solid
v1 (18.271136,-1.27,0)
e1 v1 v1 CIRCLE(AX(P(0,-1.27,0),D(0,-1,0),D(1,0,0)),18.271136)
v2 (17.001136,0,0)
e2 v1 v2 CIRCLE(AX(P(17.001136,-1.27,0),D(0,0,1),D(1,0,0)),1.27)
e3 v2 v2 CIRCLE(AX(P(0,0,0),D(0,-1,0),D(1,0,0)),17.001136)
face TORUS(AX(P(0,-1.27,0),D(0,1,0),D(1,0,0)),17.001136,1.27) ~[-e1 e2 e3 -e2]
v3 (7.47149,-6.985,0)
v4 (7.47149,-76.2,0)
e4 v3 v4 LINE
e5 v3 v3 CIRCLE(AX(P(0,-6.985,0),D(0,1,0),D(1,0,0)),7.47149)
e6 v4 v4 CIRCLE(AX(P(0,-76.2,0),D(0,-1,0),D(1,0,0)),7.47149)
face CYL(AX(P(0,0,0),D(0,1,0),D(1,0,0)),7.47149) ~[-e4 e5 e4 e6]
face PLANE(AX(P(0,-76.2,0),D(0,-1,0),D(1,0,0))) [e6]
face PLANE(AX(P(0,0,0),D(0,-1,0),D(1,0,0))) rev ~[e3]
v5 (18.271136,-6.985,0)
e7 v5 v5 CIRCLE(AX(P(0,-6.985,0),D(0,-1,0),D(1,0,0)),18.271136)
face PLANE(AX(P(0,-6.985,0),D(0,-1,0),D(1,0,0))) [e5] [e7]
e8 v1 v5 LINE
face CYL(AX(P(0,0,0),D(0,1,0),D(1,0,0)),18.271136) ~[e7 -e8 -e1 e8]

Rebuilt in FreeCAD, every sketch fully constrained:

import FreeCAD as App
import Part
import Sketcher

V = App.Vector


def edges_at(feature, points):
    """Names of the edges that pass closest to the given points."""
    edges = feature.Shape.Edges
    near = lambda p: min(range(len(edges)), key=lambda i: edges[i].distToShape(Part.Vertex(*p))[0])
    return sorted({f"Edge{near(p) + 1}" for p in points})

doc = App.newDocument("Part")
params = doc.addObject("Spreadsheet::Sheet", "Params")
for row, (alias, value) in enumerate([
    ("pad1_length", "3 in"),
    ("pad2_length", "0.275 in"),
    ("fillet_radius", "0.05 in"),
], start=1):
    params.set(f"A{row}", alias)
    params.set(f"B{row}", "=" + value)
    params.setAlias(f"B{row}", alias)

body = doc.addObject("PartDesign::Body", "Body")

sketch1 = body.newObject("Sketcher::SketchObject", "Sketch")
sketch1.AttachmentSupport = (doc.getObject("XZ_Plane"), [""])
sketch1.MapMode = "FlatFace"
sketch1.addGeometry(Part.Circle(V(0, 0, 0), V(0, 0, 1), 7), False)
sketch1.addConstraint(Sketcher.Constraint("Coincident", 0, 3, -1, 1))
sketch1.addConstraint(Sketcher.Constraint("Diameter", 0, 14.94298))
pad1 = body.newObject("PartDesign::Pad", "Pad")
pad1.Profile = sketch1
pad1.setExpression("Length", "Params.pad1_length")

sketch2 = body.newObject("Sketcher::SketchObject", "Sketch001")
sketch2.AttachmentSupport = (doc.getObject("XZ_Plane"), [""])
sketch2.MapMode = "FlatFace"
sketch2.addGeometry(Part.Circle(V(0, 0, 0), V(0, 0, 1), 18), False)
sketch2.addConstraint(Sketcher.Constraint("Coincident", 0, 3, -1, 1))
sketch2.addConstraint(Sketcher.Constraint("Diameter", 0, 36.542272))
pad2 = body.newObject("PartDesign::Pad", "Pad001")
pad2.Profile = sketch2
pad2.setExpression("Length", "Params.pad2_length")
doc.recompute()

fillet = body.newObject("PartDesign::Fillet", "Fillet")
fillet.Base = (pad2, edges_at(pad2, [(-18.271, 0, 0)]))
fillet.setExpression("Radius", "Params.fillet_radius")

doc.recompute()
